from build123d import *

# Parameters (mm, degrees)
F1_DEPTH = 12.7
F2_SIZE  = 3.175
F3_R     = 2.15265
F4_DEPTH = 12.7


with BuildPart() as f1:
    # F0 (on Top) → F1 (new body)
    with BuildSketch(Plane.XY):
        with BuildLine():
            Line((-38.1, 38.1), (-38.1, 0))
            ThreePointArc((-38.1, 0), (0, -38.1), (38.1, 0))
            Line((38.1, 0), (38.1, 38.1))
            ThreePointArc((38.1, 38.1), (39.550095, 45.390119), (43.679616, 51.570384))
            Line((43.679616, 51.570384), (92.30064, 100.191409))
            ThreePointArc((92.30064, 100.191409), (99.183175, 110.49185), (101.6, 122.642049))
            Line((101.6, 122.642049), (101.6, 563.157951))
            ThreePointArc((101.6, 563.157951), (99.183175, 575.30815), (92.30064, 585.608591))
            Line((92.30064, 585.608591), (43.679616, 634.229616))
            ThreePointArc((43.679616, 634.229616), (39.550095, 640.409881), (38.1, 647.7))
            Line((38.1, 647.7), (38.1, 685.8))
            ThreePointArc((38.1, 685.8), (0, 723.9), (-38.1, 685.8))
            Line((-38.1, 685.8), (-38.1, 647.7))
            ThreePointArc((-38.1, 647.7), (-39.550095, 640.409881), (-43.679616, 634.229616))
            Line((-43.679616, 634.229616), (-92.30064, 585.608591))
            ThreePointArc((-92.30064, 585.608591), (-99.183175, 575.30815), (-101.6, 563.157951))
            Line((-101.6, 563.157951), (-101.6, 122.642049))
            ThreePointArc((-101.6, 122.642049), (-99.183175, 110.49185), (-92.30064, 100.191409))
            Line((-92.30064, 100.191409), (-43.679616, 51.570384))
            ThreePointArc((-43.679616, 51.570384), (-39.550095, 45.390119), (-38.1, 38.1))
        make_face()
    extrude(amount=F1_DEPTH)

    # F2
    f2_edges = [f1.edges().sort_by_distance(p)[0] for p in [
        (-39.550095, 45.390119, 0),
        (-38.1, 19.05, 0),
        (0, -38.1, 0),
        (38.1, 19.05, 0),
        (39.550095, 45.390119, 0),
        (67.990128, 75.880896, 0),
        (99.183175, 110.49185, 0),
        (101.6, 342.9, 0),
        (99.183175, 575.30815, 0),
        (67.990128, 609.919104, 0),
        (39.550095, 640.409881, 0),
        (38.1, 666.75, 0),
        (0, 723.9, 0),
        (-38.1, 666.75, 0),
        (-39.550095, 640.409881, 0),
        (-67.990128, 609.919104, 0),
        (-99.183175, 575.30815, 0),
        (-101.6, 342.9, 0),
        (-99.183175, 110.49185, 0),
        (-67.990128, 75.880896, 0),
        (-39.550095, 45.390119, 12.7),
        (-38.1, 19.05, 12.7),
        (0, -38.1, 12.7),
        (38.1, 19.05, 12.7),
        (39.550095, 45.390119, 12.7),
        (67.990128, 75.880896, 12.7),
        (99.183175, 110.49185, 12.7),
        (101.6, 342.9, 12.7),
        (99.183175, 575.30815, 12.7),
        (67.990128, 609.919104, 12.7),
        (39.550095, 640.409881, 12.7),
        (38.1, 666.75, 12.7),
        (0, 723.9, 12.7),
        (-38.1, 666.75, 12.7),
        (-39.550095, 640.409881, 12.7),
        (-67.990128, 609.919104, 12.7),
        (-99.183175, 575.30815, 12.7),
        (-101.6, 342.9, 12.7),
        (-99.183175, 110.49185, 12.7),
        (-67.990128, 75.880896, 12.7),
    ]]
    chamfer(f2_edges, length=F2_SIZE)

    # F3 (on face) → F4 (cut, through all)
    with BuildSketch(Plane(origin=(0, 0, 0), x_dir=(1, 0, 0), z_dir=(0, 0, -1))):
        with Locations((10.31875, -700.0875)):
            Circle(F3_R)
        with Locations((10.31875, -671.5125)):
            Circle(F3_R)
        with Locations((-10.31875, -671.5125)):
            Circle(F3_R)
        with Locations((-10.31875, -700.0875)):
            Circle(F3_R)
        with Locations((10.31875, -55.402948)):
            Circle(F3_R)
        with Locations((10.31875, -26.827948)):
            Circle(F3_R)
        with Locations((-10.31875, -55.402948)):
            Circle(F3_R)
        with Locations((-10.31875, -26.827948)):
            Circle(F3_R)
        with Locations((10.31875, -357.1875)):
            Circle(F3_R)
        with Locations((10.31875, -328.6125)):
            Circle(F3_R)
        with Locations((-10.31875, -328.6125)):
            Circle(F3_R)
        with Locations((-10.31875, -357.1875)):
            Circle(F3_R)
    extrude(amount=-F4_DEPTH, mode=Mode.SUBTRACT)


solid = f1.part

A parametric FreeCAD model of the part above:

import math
import FreeCAD as App
import Part
import Sketcher
from FreeCAD import Vector
Q = App.Units.Quantity


def edges_at(feature, points):
    """Names of the edges that pass closest to the given points."""
    edges = feature.Shape.Edges
    near = lambda p: min(range(len(edges)), key=lambda i: edges[i].distToShape(Part.Vertex(*p))[0])
    return sorted({f"Edge{near(p) + 1}" for p in points})

doc = App.newDocument("Part")
params = doc.addObject("Spreadsheet::Sheet", "Params")
for row, (alias, value) in enumerate([
    ("sketch1_radius", "1.5 in"),
    ("sketch1_radius2", "0.75 in"),
    ("sketch1_radius3", "1.25 in"),
    ("sketch1_height", "1.5 in"),
    ("pad1_length", "0.5 in"),
    ("chamfer_size", "0.125 in"),
], start=1):
    params.set(f"A{row}", alias)
    params.set(f"B{row}", "=" + value)
    params.setAlias(f"B{row}", alias)

body = doc.addObject("PartDesign::Body", "Body")

sketch1 = body.newObject("Sketcher::SketchObject", "Sketch")
sketch1.AttachmentSupport = (doc.getObject("XY_Plane"), [""])
sketch1.MapMode = "FlatFace"
sketch1.addGeometry([
    Part.LineSegment(Vector(-38, 38, 0), Vector(-38, 0, 0)),
    Part.ArcOfCircle(Part.Circle(Vector(0, 0, 0), Vector(0, 0, 1), 38), math.radians(180), math.radians(360)),
    Part.LineSegment(Vector(38, 0, 0), Vector(38, 38, 0)),
    Part.ArcOfCircle(Part.Circle(Vector(57, 38, 0), Vector(0, 0, 1), 19), math.radians(135), math.radians(180)),
    Part.LineSegment(Vector(44, 52, 0), Vector(92, 100, 0)),
    Part.ArcOfCircle(Part.Circle(Vector(70, 123, 0), Vector(0, 0, 1), 32), math.radians(-45), math.radians(0)),
    Part.LineSegment(Vector(102, 123, 0), Vector(102, 563, 0)),
    Part.ArcOfCircle(Part.Circle(Vector(70, 563, 0), Vector(0, 0, 1), 32), math.radians(0), math.radians(45)),
    Part.LineSegment(Vector(92, 586, 0), Vector(44, 634, 0)),
    Part.ArcOfCircle(Part.Circle(Vector(57, 648, 0), Vector(0, 0, 1), 19), math.radians(-180), math.radians(-135)),
    Part.LineSegment(Vector(38, 648, 0), Vector(38, 686, 0)),
    Part.ArcOfCircle(Part.Circle(Vector(0, 686, 0), Vector(0, 0, 1), 38), math.radians(0), math.radians(180)),
    Part.LineSegment(Vector(-38, 686, 0), Vector(-38, 648, 0)),
    Part.ArcOfCircle(Part.Circle(Vector(-57, 648, 0), Vector(0, 0, 1), 19), math.radians(-45), math.radians(0)),
    Part.LineSegment(Vector(-44, 634, 0), Vector(-92, 586, 0)),
    Part.ArcOfCircle(Part.Circle(Vector(-70, 563, 0), Vector(0, 0, 1), 32), math.radians(135), math.radians(180)),
    Part.LineSegment(Vector(-102, 563, 0), Vector(-102, 123, 0)),
    Part.ArcOfCircle(Part.Circle(Vector(-70, 123, 0), Vector(0, 0, 1), 32), math.radians(-180), math.radians(-135)),
    Part.LineSegment(Vector(-92, 100, 0), Vector(-44, 52, 0)),
    Part.ArcOfCircle(Part.Circle(Vector(-57, 38, 0), Vector(0, 0, 1), 19), math.radians(0), math.radians(45)),
], False)
sketch1.addConstraint([
    Sketcher.Constraint("Tangent", 0, 2, 1, 1),
    Sketcher.Constraint("Tangent", 1, 2, 2, 1),
    Sketcher.Constraint("Tangent", 2, 2, 3, 2),
    Sketcher.Constraint("Tangent", 3, 1, 4, 1),
    Sketcher.Constraint("Tangent", 4, 2, 5, 1),
    Sketcher.Constraint("Tangent", 5, 2, 6, 1),
    Sketcher.Constraint("Tangent", 6, 2, 7, 1),
    Sketcher.Constraint("Tangent", 7, 2, 8, 1),
    Sketcher.Constraint("Tangent", 8, 2, 9, 2),
    Sketcher.Constraint("Tangent", 9, 1, 10, 1),
    Sketcher.Constraint("Tangent", 10, 2, 11, 1),
    Sketcher.Constraint("Tangent", 11, 2, 12, 1),
    Sketcher.Constraint("Tangent", 12, 2, 13, 2),
    Sketcher.Constraint("Tangent", 13, 1, 14, 1),
    Sketcher.Constraint("Tangent", 14, 2, 15, 1),
    Sketcher.Constraint("Tangent", 15, 2, 16, 1),
    Sketcher.Constraint("Tangent", 16, 2, 17, 1),
    Sketcher.Constraint("Tangent", 17, 2, 18, 1),
    Sketcher.Constraint("Tangent", 18, 2, 19, 2),
    Sketcher.Constraint("Tangent", 19, 1, 0, 1),
    Sketcher.Constraint("Vertical", 0),
    Sketcher.Constraint("Vertical", 2),
    Sketcher.Constraint("Vertical", 6),
    Sketcher.Constraint("Vertical", 10),
    Sketcher.Constraint("Vertical", 12),
    Sketcher.Constraint("Vertical", 16),
    Sketcher.Constraint("Coincident", 1, 3, -1, 1),
    Sketcher.Constraint("Equal", 5, 7),
    Sketcher.Constraint("Equal", 3, 9),
    Sketcher.Constraint("Equal", 1, 11),
    Sketcher.Constraint("Equal", 9, 13),
    Sketcher.Constraint("Equal", 7, 15),
    Sketcher.Constraint("Equal", 15, 17),
    Sketcher.Constraint("Equal", 13, 19),
    Sketcher.Constraint("Symmetric", 9, 3, 13, 3, -2),
    Sketcher.Constraint("Symmetric", 7, 3, 15, 3, -2),
    Sketcher.Constraint("Symmetric", 4, 2, 17, 2, -2),
    Sketcher.Constraint("Perpendicular", 4, 8),
    Sketcher.Constraint("Perpendicular", 8, 14),
    Sketcher.Constraint("Equal", 2, 10),
    Sketcher.Constraint("Radius", 1, Q("1.5 in")),
    Sketcher.Constraint("Radius", 3, Q("0.75 in")),
    Sketcher.Constraint("Radius", 5, Q("1.25 in")),
    Sketcher.Constraint("DistanceY", 0, 2, 0, 1, Q("1.5 in")),
    Sketcher.Constraint("DistanceY", -1, 1, 11, 3, Q("27 in")),
    Sketcher.Constraint("DistanceX", -1, 1, 5, 2, Q("4 in")),
])
sketch1.setExpression("Constraints[40]", "Params.sketch1_radius")
sketch1.setExpression("Constraints[41]", "Params.sketch1_radius2")
sketch1.setExpression("Constraints[42]", "Params.sketch1_radius3")
sketch1.setExpression("Constraints[43]", "Params.sketch1_height")
pad1 = body.newObject("PartDesign::Pad", "Pad")
pad1.Profile = sketch1
pad1.setExpression("Length", "Params.pad1_length")
doc.recompute()

chamfer = body.newObject("PartDesign::Chamfer", "Chamfer")
chamfer.Base = (pad1, edges_at(pad1, [
    (-39.55, 45.39, 0),
    (-38.1, 19.05, 0),
    (0, -38.1, 0),
    (38.1, 19.05, 0),
    (39.55, 45.39, 0),
    (67.99, 75.881, 0),
    (99.183, 110.492, 0),
    (101.6, 342.9, 0),
    (99.183, 575.308, 0),
    (67.99, 609.919, 0),
    (39.55, 640.41, 0),
    (38.1, 666.75, 0),
    (0, 723.9, 0),
    (-38.1, 666.75, 0),
    (-39.55, 640.41, 0),
    (-67.99, 609.919, 0),
    (-99.183, 575.308, 0),
    (-101.6, 342.9, 0),
    (-99.183, 110.492, 0),
    (-67.99, 75.881, 0),
    (-39.55, 45.39, 12.7),
    (-38.1, 19.05, 12.7),
    (0, -38.1, 12.7),
    (38.1, 19.05, 12.7),
    (39.55, 45.39, 12.7),
    (67.99, 75.881, 12.7),
    (99.183, 110.492, 12.7),
    (101.6, 342.9, 12.7),
    (99.183, 575.308, 12.7),
    (67.99, 609.919, 12.7),
    (39.55, 640.41, 12.7),
    (38.1, 666.75, 12.7),
    (0, 723.9, 12.7),
    (-38.1, 666.75, 12.7),
    (-39.55, 640.41, 12.7),
    (-67.99, 609.919, 12.7),
    (-99.183, 575.308, 12.7),
    (-101.6, 342.9, 12.7),
    (-99.183, 110.492, 12.7),
    (-67.99, 75.881, 12.7),
]))
chamfer.setExpression("Size", "Params.chamfer_size")

sketch2 = body.newObject("Sketcher::SketchObject", "Sketch001")
sketch2.AttachmentSupport = (doc.getObject("XY_Plane"), [""])
sketch2.MapMode = "FlatFace"
sketch2.addGeometry([
    Part.Circle(Vector(10.3, 700.1, 0), Vector(0, 0, 1), 2.2),
    Part.Circle(Vector(10.3, 671.5, 0), Vector(0, 0, 1), 2.2),
    Part.Circle(Vector(-10.3, 671.5, 0), Vector(0, 0, 1), 2.2),
    Part.Circle(Vector(-10.3, 700.1, 0), Vector(0, 0, 1), 2.2),
    Part.Circle(Vector(10.3, 55.4, 0), Vector(0, 0, 1), 2.2),
    Part.Circle(Vector(10.3, 26.8, 0), Vector(0, 0, 1), 2.2),
    Part.Circle(Vector(-10.3, 55.4, 0), Vector(0, 0, 1), 2.2),
    Part.Circle(Vector(-10.3, 26.8, 0), Vector(0, 0, 1), 2.2),
    Part.Circle(Vector(10.3, 357.2, 0), Vector(0, 0, 1), 2.2),
    Part.Circle(Vector(10.3, 328.6, 0), Vector(0, 0, 1), 2.2),
    Part.Circle(Vector(-10.3, 328.6, 0), Vector(0, 0, 1), 2.2),
    Part.Circle(Vector(-10.3, 357.2, 0), Vector(0, 0, 1), 2.2),
], False)
sketch2.addConstraint([
    Sketcher.Constraint("Equal", 0, 1),
    Sketcher.Constraint("Equal", 1, 2),
    Sketcher.Constraint("Equal", 2, 3),
    Sketcher.Constraint("Equal", 3, 4),
    Sketcher.Constraint("Equal", 4, 5),
    Sketcher.Constraint("Equal", 5, 6),
    Sketcher.Constraint("Equal", 6, 7),
    Sketcher.Constraint("Equal", 7, 8),
    Sketcher.Constraint("Equal", 8, 9),
    Sketcher.Constraint("Equal", 9, 10),
    Sketcher.Constraint("Equal", 10, 11),
    Sketcher.Constraint("Symmetric", 1, 3, 2, 3, -2),
    Sketcher.Constraint("Symmetric", 0, 3, 3, 3, -2),
    Sketcher.Constraint("Symmetric", 4, 3, 6, 3, -2),
    Sketcher.Constraint("Symmetric", 5, 3, 7, 3, -2),
    Sketcher.Constraint("Symmetric", 9, 3, 10, 3, -2),
    Sketcher.Constraint("Symmetric", 8, 3, 11, 3, -2),
    Sketcher.Constraint("Vertical", 0, 3, 1, 3),
    Sketcher.Constraint("Vertical", 1, 3, 4, 3),
    Sketcher.Constraint("Vertical", 4, 3, 5, 3),
    Sketcher.Constraint("Vertical", 5, 3, 8, 3),
    Sketcher.Constraint("Vertical", 8, 3, 9, 3),
    Sketcher.Constraint("Diameter", 0, Q("0.1695 in")),
    Sketcher.Constraint("DistanceX", -1, 1, 0, 3, Q("0.40625 in")),
    Sketcher.Constraint("DistanceY", -1, 1, 0, 3, Q("27.5625 in")),
    Sketcher.Constraint("DistanceY", -1, 1, 1, 3, Q("26.4375 in")),
    Sketcher.Constraint("DistanceY", -1, 1, 8, 3, Q("14.0625 in")),
    Sketcher.Constraint("DistanceY", -1, 1, 9, 3, Q("12.9375 in")),
    Sketcher.Constraint("DistanceY", 5, 3, 4, 3, Q("1.125 in")),
    Sketcher.Constraint("DistanceY", -1, 1, 4, 3, Q("55.402948 mm")),
])
pocket1 = body.newObject("PartDesign::Pocket", "Pocket")
pocket1.Profile = sketch2
pocket1.Type = "ThroughAll"
pocket1.Reversed = True

doc.recompute()
